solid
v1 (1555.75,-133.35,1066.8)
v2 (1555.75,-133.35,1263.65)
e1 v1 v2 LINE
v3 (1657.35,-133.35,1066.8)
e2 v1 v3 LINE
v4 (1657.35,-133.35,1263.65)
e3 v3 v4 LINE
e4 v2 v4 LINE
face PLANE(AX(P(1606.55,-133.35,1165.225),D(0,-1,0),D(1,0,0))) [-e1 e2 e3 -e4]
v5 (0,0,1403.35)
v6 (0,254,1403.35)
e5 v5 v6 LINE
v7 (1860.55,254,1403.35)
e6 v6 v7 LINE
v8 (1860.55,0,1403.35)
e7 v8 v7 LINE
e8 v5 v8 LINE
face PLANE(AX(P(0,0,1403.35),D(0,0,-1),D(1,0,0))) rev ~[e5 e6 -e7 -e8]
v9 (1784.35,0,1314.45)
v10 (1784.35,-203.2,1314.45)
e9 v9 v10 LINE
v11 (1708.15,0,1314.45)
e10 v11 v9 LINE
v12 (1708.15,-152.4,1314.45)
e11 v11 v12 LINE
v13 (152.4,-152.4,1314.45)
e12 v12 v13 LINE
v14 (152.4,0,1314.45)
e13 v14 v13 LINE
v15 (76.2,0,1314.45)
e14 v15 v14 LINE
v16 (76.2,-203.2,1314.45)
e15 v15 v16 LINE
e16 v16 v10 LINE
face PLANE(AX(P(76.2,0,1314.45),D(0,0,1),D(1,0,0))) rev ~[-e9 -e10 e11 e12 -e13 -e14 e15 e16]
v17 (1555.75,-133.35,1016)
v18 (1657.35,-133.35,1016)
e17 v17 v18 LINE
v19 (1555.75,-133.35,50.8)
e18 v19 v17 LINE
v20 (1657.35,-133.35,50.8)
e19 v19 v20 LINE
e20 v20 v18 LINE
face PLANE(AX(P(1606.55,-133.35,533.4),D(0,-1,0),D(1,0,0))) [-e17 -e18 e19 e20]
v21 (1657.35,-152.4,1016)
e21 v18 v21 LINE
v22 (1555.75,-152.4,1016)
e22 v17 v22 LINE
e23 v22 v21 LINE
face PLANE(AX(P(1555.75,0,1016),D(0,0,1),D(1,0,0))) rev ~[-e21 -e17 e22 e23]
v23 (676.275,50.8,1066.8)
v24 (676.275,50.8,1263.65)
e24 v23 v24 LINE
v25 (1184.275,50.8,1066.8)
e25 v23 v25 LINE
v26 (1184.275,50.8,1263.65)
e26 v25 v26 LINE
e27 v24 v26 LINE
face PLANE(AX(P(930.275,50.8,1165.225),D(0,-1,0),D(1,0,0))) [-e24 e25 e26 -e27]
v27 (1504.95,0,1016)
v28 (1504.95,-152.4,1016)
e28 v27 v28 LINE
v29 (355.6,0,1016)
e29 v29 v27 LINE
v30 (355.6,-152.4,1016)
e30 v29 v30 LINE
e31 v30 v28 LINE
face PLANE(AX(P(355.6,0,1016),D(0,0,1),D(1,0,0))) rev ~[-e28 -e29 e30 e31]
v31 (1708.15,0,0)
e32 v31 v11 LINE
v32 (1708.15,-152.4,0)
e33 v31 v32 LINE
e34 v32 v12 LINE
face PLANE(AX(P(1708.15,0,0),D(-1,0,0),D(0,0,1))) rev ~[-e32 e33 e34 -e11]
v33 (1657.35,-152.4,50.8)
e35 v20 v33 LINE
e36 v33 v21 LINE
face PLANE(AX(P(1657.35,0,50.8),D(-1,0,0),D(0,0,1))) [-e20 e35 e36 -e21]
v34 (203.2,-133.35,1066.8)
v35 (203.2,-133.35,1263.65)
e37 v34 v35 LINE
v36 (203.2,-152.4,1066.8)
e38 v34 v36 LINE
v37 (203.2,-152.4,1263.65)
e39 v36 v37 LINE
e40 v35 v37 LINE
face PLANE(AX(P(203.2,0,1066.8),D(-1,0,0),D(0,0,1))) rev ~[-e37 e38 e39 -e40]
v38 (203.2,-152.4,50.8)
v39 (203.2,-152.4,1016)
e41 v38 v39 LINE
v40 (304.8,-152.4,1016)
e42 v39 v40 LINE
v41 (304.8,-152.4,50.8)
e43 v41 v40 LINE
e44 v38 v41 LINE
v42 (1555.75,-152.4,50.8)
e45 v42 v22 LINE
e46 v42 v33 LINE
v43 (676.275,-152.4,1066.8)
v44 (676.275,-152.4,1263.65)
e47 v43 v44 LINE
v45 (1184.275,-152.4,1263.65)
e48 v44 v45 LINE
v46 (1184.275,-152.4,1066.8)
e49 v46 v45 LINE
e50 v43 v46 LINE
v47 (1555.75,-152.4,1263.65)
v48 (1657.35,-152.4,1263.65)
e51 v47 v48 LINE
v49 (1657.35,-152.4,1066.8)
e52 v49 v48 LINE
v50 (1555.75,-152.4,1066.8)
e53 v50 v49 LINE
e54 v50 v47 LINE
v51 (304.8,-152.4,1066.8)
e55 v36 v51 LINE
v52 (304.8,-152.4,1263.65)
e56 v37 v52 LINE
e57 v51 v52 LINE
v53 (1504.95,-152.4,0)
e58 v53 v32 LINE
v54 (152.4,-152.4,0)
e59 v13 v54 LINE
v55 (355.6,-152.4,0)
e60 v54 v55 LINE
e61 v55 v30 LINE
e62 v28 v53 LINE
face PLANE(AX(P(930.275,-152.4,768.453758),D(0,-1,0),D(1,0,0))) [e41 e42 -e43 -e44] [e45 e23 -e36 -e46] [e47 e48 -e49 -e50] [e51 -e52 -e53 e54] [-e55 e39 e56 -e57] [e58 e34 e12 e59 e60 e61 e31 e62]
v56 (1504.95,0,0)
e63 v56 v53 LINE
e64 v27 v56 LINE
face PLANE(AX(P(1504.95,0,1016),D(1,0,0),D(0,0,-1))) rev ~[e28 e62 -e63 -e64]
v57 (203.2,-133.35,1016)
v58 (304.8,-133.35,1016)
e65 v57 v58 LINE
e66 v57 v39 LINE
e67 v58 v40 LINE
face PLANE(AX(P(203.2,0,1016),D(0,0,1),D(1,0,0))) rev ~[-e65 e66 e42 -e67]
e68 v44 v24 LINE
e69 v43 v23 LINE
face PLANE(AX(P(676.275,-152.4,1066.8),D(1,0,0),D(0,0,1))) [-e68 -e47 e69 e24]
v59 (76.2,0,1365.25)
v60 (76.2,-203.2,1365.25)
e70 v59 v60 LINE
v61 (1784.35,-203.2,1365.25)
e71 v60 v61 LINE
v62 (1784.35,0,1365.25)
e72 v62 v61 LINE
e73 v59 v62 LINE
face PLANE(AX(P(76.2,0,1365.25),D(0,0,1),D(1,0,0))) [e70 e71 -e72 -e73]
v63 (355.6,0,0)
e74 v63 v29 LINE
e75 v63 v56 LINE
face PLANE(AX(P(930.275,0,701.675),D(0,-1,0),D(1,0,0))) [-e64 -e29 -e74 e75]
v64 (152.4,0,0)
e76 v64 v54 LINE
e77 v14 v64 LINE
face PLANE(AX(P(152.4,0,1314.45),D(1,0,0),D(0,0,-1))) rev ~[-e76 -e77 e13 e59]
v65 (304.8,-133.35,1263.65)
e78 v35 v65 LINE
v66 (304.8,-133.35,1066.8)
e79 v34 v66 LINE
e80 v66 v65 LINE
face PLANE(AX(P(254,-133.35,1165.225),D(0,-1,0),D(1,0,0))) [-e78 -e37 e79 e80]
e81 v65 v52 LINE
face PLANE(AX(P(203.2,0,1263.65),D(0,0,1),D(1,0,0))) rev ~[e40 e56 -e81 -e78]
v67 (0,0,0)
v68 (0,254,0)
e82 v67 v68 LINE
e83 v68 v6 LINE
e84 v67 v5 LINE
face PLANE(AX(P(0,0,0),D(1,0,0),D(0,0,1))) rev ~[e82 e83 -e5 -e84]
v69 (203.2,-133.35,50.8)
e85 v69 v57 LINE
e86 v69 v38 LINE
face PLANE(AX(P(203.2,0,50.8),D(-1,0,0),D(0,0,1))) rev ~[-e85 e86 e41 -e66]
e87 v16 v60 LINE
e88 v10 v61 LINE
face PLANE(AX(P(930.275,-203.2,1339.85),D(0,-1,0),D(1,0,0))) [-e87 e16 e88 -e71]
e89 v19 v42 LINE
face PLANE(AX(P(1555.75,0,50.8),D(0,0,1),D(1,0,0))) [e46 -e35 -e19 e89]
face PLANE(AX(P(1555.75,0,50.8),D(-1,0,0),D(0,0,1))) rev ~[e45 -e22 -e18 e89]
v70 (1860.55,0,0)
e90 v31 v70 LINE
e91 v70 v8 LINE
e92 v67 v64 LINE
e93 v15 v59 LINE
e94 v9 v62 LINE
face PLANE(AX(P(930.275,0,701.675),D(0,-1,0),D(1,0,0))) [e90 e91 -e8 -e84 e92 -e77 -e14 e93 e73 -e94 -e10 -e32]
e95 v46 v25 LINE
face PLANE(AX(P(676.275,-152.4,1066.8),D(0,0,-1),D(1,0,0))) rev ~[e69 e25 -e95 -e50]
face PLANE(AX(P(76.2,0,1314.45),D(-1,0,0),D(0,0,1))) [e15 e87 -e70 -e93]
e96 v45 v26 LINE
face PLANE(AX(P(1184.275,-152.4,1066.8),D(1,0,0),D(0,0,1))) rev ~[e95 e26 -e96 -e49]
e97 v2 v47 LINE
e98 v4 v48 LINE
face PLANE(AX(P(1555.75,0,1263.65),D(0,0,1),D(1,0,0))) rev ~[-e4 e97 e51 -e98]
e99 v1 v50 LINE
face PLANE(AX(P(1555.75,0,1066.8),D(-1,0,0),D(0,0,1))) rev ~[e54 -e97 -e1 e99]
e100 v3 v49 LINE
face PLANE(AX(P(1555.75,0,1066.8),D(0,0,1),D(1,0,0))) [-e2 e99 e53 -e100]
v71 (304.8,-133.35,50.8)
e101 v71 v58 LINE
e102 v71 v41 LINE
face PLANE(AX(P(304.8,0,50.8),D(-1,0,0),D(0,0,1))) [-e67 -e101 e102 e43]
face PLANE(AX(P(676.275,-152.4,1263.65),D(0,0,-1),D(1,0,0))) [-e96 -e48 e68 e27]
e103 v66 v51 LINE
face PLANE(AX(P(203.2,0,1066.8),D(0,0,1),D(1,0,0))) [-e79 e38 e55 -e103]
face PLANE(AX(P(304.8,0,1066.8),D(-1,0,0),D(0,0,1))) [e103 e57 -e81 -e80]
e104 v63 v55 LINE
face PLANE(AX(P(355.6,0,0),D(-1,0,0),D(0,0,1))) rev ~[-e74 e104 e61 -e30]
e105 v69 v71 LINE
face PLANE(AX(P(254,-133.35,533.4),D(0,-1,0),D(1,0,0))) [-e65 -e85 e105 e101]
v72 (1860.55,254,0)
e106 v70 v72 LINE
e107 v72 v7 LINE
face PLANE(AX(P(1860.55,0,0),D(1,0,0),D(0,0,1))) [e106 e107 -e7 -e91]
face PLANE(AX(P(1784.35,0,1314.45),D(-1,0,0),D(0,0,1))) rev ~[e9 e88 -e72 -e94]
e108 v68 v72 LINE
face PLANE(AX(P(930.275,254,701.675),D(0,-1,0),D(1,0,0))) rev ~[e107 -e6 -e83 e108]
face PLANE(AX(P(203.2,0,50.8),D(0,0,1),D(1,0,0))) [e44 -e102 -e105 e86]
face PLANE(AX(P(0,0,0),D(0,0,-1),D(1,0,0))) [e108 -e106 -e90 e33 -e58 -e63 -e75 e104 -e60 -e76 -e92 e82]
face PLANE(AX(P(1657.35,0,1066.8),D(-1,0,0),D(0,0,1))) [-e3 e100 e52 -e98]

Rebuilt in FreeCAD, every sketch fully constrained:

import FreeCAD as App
import Part
import Sketcher
Q = App.Units.Quantity


def add_polygon(sketch, points):
    """Adds a closed chain of lines whose ends are joined by coincident constraints."""
    first, n = sketch.GeometryCount, len(points)
    for a, b in zip(points, points[1:] + points[:1]):
        sketch.addGeometry(Part.LineSegment(App.Vector(*a, 0), App.Vector(*b, 0)), False)
    for i in range(n):
        sketch.addConstraint(Sketcher.Constraint("Coincident", first + i, 2, first + (i + 1) % n, 1))

doc = App.newDocument("Part")
params = doc.addObject("Spreadsheet::Sheet", "Params")
for row, (alias, value) in enumerate([
    ("sketch1_width", "73.25 in"),
    ("sketch1_height", "55.25 in"),
    ("pad1_length", "10 in"),
    ("sketch2_height", "2 in"),
    ("sketch2_width", "67.25 in"),
    ("pad2_length", "8 in"),
    ("sketch3_width", "8 in"),
    ("sketch3_width2", "4 in"),
    ("sketch3_height", "40 in"),
    ("sketch3_height2", "38 in"),
    ("sketch3_width3", "45.25 in"),
    ("pad3_length", "6 in"),
    ("sketch4_width", "20 in"),
    ("sketch4_height", "7.75 in"),
    ("pocket1_length", "8 in"),
    ("sketch5_width", "4 in"),
    ("sketch5_height", "38 in"),
    ("sketch5_height2", "7.75 in"),
    ("pad4_length", "5.25 in"),
], start=1):
    params.set(f"A{row}", alias)
    params.set(f"B{row}", "=" + value)
    params.setAlias(f"B{row}", alias)

body = doc.addObject("PartDesign::Body", "Body")

sketch1 = body.newObject("Sketcher::SketchObject", "Sketch")
sketch1.AttachmentSupport = (doc.getObject("XZ_Plane"), [""])
sketch1.MapMode = "FlatFace"
add_polygon(sketch1, [(0, 1403), (0, 0), (1861, 0), (1861, 1403)])
sketch1.addConstraint(Sketcher.Constraint("Vertical", 0))
sketch1.addConstraint(Sketcher.Constraint("Horizontal", 1))
sketch1.addConstraint(Sketcher.Constraint("Vertical", 2))
sketch1.addConstraint(Sketcher.Constraint("Horizontal", 3))
sketch1.addConstraint(Sketcher.Constraint("Coincident", 0, 2, -1, 1))
sketch1.addConstraint(Sketcher.Constraint("DistanceX", 1, 1, 1, 2, Q("73.25 in")))
sketch1.addConstraint(Sketcher.Constraint("DistanceY", 0, 2, 0, 1, Q("55.25 in")))
sketch1.setExpression("Constraints[9]", "Params.sketch1_width")
sketch1.setExpression("Constraints[10]", "Params.sketch1_height")
pad1 = body.newObject("PartDesign::Pad", "Pad")
pad1.Profile = sketch1
pad1.setExpression("Length", "Params.pad1_length")
pad1.Reversed = True

sketch2 = body.newObject("Sketcher::SketchObject", "Sketch001")
sketch2.AttachmentSupport = (doc.getObject("XZ_Plane"), [""])
sketch2.MapMode = "FlatFace"
add_polygon(sketch2, [(76, 1365), (76, 1314), (1784, 1314), (1784, 1365)])
sketch2.addConstraint(Sketcher.Constraint("Vertical", 0))
sketch2.addConstraint(Sketcher.Constraint("Horizontal", 1))
sketch2.addConstraint(Sketcher.Constraint("Vertical", 2))
sketch2.addConstraint(Sketcher.Constraint("Horizontal", 3))
sketch2.addConstraint(Sketcher.Constraint("DistanceY", 0, 2, 0, 1, Q("2 in")))
sketch2.addConstraint(Sketcher.Constraint("DistanceX", -1, 1, 0, 2, Q("3 in")))
sketch2.addConstraint(Sketcher.Constraint("DistanceX", 1, 1, 1, 2, Q("67.25 in")))
sketch2.addConstraint(Sketcher.Constraint("DistanceY", -1, 1, 0, 2, Q("51.75 in")))
sketch2.setExpression("Constraints[8]", "Params.sketch2_height")
sketch2.setExpression("Constraints[10]", "Params.sketch2_width")
pad2 = body.newObject("PartDesign::Pad", "Pad001")
pad2.Profile = sketch2
pad2.setExpression("Length", "Params.pad2_length")

sketch3 = body.newObject("Sketcher::SketchObject", "Sketch002")
sketch3.AttachmentSupport = (doc.getObject("XZ_Plane"), [""])
sketch3.MapMode = "FlatFace"
add_polygon(sketch3, [(152, 1314), (152, 0), (356, 0), (356, 1016), (1505, 1016), (1505, 0), (1708, 0), (1708, 1314)])
add_polygon(sketch3, [(305, 51), (203, 51), (203, 1016), (305, 1016)])
add_polygon(sketch3, [(1657, 51), (1556, 51), (1556, 1016), (1657, 1016)])
add_polygon(sketch3, [(305, 1067), (203, 1067), (203, 1264), (305, 1264)])
add_polygon(sketch3, [(1657, 1067), (1556, 1067), (1556, 1264), (1657, 1264)])
sketch3.addConstraint(Sketcher.Constraint("Vertical", 0))
sketch3.addConstraint(Sketcher.Constraint("Horizontal", 1))
sketch3.addConstraint(Sketcher.Constraint("Vertical", 2))
sketch3.addConstraint(Sketcher.Constraint("Horizontal", 3))
sketch3.addConstraint(Sketcher.Constraint("Vertical", 4))
sketch3.addConstraint(Sketcher.Constraint("Horizontal", 5))
sketch3.addConstraint(Sketcher.Constraint("Vertical", 6))
sketch3.addConstraint(Sketcher.Constraint("Horizontal", 7))
sketch3.addConstraint(Sketcher.Constraint("Horizontal", 8))
sketch3.addConstraint(Sketcher.Constraint("Vertical", 9))
sketch3.addConstraint(Sketcher.Constraint("Horizontal", 10))
sketch3.addConstraint(Sketcher.Constraint("Vertical", 11))
sketch3.addConstraint(Sketcher.Constraint("Horizontal", 12))
sketch3.addConstraint(Sketcher.Constraint("Vertical", 13))
sketch3.addConstraint(Sketcher.Constraint("Horizontal", 14))
sketch3.addConstraint(Sketcher.Constraint("Vertical", 15))
sketch3.addConstraint(Sketcher.Constraint("Horizontal", 16))
sketch3.addConstraint(Sketcher.Constraint("Vertical", 17))
sketch3.addConstraint(Sketcher.Constraint("Horizontal", 18))
sketch3.addConstraint(Sketcher.Constraint("Vertical", 19))
sketch3.addConstraint(Sketcher.Constraint("Horizontal", 20))
sketch3.addConstraint(Sketcher.Constraint("Vertical", 21))
sketch3.addConstraint(Sketcher.Constraint("Horizontal", 22))
sketch3.addConstraint(Sketcher.Constraint("Vertical", 23))
sketch3.addConstraint(Sketcher.Constraint("PointOnObject", 0, 2, -1))
sketch3.addConstraint(Sketcher.Constraint("PointOnObject", 4, 2, -1))
sketch3.addConstraint(Sketcher.Constraint("Horizontal", 3, 2, 9, 2))
sketch3.addConstraint(Sketcher.Constraint("Horizontal", 11, 2, 12, 2))
sketch3.addConstraint(Sketcher.Constraint("Horizontal", 10, 2, 13, 2))
sketch3.addConstraint(Sketcher.Constraint("Horizontal", 19, 2, 20, 2))
sketch3.addConstraint(Sketcher.Constraint("Horizontal", 18, 2, 21, 2))
sketch3.addConstraint(Sketcher.Constraint("Vertical", 9, 2, 16, 2))
sketch3.addConstraint(Sketcher.Constraint("Vertical", 11, 2, 18, 2))
sketch3.addConstraint(Sketcher.Constraint("Vertical", 13, 2, 20, 2))
sketch3.addConstraint(Sketcher.Constraint("Vertical", 15, 2, 22, 2))
sketch3.addConstraint(Sketcher.Constraint("Equal", 1, 5))
sketch3.addConstraint(Sketcher.Constraint("Equal", 10, 12))
sketch3.addConstraint(Sketcher.Constraint("DistanceX", 1, 1, 1, 2, Q("8 in")))
sketch3.addConstraint(Sketcher.Constraint("DistanceX", 8, 2, 8, 1, Q("4 in")))
sketch3.addConstraint(Sketcher.Constraint("DistanceY", 2, 1, 2, 2, Q("40 in")))
sketch3.addConstraint(Sketcher.Constraint("DistanceY", 9, 1, 9, 2, Q("38 in")))
sketch3.addConstraint(Sketcher.Constraint("DistanceX", -1, 1, 0, 2, Q("6 in")))
sketch3.addConstraint(Sketcher.Constraint("DistanceX", -1, 1, 8, 2, Q("8 in")))
sketch3.addConstraint(Sketcher.Constraint("DistanceY", -1, 1, 16, 2, Q("42 in")))
sketch3.addConstraint(Sketcher.Constraint("DistanceX", 4, 2, 12, 2, Q("2 in")))
sketch3.addConstraint(Sketcher.Constraint("DistanceY", 17, 2, 7, 2, Q("2 in")))
sketch3.addConstraint(Sketcher.Constraint("DistanceX", 3, 1, 3, 2, Q("45.25 in")))
sketch3.addConstraint(Sketcher.Constraint("DistanceY", 0, 2, 0, 1, Q("51.75 in")))
sketch3.setExpression("Constraints[61]", "Params.sketch3_width")
sketch3.setExpression("Constraints[62]", "Params.sketch3_width2")
sketch3.setExpression("Constraints[63]", "Params.sketch3_height")
sketch3.setExpression("Constraints[64]", "Params.sketch3_height2")
sketch3.setExpression("Constraints[70]", "Params.sketch3_width3")
pad3 = body.newObject("PartDesign::Pad", "Pad002")
pad3.Profile = sketch3
pad3.setExpression("Length", "Params.pad3_length")

sketch4 = body.newObject("Sketcher::SketchObject", "Sketch003")
sketch4.AttachmentSupport = (doc.getObject("XZ_Plane"), [""])
sketch4.MapMode = "FlatFace"
sketch4.AttachmentOffset = App.Placement(App.Vector(0, 0, 6 * 25.4), App.Rotation())
add_polygon(sketch4, [(676, 1264), (676, 1067), (1184, 1067), (1184, 1264)])
sketch4.addConstraint(Sketcher.Constraint("Vertical", 0))
sketch4.addConstraint(Sketcher.Constraint("Horizontal", 1))
sketch4.addConstraint(Sketcher.Constraint("Vertical", 2))
sketch4.addConstraint(Sketcher.Constraint("Horizontal", 3))
sketch4.addConstraint(Sketcher.Constraint("DistanceX", 1, 1, 1, 2, Q("20 in")))
sketch4.addConstraint(Sketcher.Constraint("DistanceY", -1, 1, 0, 2, Q("42 in")))
sketch4.addConstraint(Sketcher.Constraint("DistanceY", 0, 2, 0, 1, Q("7.75 in")))
sketch4.addConstraint(Sketcher.Constraint("DistanceX", -1, 1, 0, 2, Q("26.625 in")))
sketch4.setExpression("Constraints[8]", "Params.sketch4_width")
sketch4.setExpression("Constraints[10]", "Params.sketch4_height")
pocket1 = body.newObject("PartDesign::Pocket", "Pocket")
pocket1.Profile = sketch4
pocket1.setExpression("Length", "Params.pocket1_length")

sketch5 = body.newObject("Sketcher::SketchObject", "Sketch004")
sketch5.AttachmentSupport = (doc.getObject("XZ_Plane"), [""])
sketch5.MapMode = "FlatFace"
add_polygon(sketch5, [(203, 1016), (203, 51), (305, 51), (305, 1016)])
add_polygon(sketch5, [(203, 1264), (203, 1067), (305, 1067), (305, 1264)])
add_polygon(sketch5, [(1556, 1264), (1556, 1067), (1657, 1067), (1657, 1264)])
add_polygon(sketch5, [(1556, 1016), (1556, 51), (1657, 51), (1657, 1016)])
sketch5.addConstraint(Sketcher.Constraint("Vertical", 0))
sketch5.addConstraint(Sketcher.Constraint("Horizontal", 1))
sketch5.addConstraint(Sketcher.Constraint("Vertical", 2))
sketch5.addConstraint(Sketcher.Constraint("Horizontal", 3))
sketch5.addConstraint(Sketcher.Constraint("Vertical", 4))
sketch5.addConstraint(Sketcher.Constraint("Horizontal", 5))
sketch5.addConstraint(Sketcher.Constraint("Vertical", 6))
sketch5.addConstraint(Sketcher.Constraint("Horizontal", 7))
sketch5.addConstraint(Sketcher.Constraint("Vertical", 8))
sketch5.addConstraint(Sketcher.Constraint("Horizontal", 9))
sketch5.addConstraint(Sketcher.Constraint("Vertical", 10))
sketch5.addConstraint(Sketcher.Constraint("Horizontal", 11))
sketch5.addConstraint(Sketcher.Constraint("Vertical", 12))
sketch5.addConstraint(Sketcher.Constraint("Horizontal", 13))
sketch5.addConstraint(Sketcher.Constraint("Vertical", 14))
sketch5.addConstraint(Sketcher.Constraint("Horizontal", 15))
sketch5.addConstraint(Sketcher.Constraint("Horizontal", 5, 2, 8, 2))
sketch5.addConstraint(Sketcher.Constraint("Horizontal", 7, 2, 10, 2))
sketch5.addConstraint(Sketcher.Constraint("Horizontal", 1, 2, 12, 2))
sketch5.addConstraint(Sketcher.Constraint("Horizontal", 3, 2, 14, 2))
sketch5.addConstraint(Sketcher.Constraint("Vertical", 3, 2, 4, 2))
sketch5.addConstraint(Sketcher.Constraint("Vertical", 2, 2, 5, 2))
sketch5.addConstraint(Sketcher.Constraint("Vertical", 11, 2, 12, 2))
sketch5.addConstraint(Sketcher.Constraint("Vertical", 10, 2, 13, 2))
sketch5.addConstraint(Sketcher.Constraint("Equal", 7, 9))
sketch5.addConstraint(Sketcher.Constraint("DistanceX", 1, 1, 1, 2, Q("4 in")))
sketch5.addConstraint(Sketcher.Constraint("DistanceY", 0, 2, 0, 1, Q("38 in")))
sketch5.addConstraint(Sketcher.Constraint("DistanceX", -1, 1, 0, 2, Q("8 in")))
sketch5.addConstraint(Sketcher.Constraint("DistanceY", -1, 1, 0, 2, Q("2 in")))
sketch5.addConstraint(Sketcher.Constraint("DistanceY", -1, 1, 4, 2, Q("42 in")))
sketch5.addConstraint(Sketcher.Constraint("DistanceY", 4, 2, 4, 1, Q("7.75 in")))
sketch5.addConstraint(Sketcher.Constraint("DistanceX", -1, 1, 8, 2, Q("61.25 in")))
sketch5.setExpression("Constraints[41]", "Params.sketch5_width")
sketch5.setExpression("Constraints[42]", "Params.sketch5_height")
sketch5.setExpression("Constraints[46]", "Params.sketch5_height2")
pad4 = body.newObject("PartDesign::Pad", "Pad003")
pad4.Profile = sketch5
pad4.setExpression("Length", "Params.pad4_length")

doc.recompute()
